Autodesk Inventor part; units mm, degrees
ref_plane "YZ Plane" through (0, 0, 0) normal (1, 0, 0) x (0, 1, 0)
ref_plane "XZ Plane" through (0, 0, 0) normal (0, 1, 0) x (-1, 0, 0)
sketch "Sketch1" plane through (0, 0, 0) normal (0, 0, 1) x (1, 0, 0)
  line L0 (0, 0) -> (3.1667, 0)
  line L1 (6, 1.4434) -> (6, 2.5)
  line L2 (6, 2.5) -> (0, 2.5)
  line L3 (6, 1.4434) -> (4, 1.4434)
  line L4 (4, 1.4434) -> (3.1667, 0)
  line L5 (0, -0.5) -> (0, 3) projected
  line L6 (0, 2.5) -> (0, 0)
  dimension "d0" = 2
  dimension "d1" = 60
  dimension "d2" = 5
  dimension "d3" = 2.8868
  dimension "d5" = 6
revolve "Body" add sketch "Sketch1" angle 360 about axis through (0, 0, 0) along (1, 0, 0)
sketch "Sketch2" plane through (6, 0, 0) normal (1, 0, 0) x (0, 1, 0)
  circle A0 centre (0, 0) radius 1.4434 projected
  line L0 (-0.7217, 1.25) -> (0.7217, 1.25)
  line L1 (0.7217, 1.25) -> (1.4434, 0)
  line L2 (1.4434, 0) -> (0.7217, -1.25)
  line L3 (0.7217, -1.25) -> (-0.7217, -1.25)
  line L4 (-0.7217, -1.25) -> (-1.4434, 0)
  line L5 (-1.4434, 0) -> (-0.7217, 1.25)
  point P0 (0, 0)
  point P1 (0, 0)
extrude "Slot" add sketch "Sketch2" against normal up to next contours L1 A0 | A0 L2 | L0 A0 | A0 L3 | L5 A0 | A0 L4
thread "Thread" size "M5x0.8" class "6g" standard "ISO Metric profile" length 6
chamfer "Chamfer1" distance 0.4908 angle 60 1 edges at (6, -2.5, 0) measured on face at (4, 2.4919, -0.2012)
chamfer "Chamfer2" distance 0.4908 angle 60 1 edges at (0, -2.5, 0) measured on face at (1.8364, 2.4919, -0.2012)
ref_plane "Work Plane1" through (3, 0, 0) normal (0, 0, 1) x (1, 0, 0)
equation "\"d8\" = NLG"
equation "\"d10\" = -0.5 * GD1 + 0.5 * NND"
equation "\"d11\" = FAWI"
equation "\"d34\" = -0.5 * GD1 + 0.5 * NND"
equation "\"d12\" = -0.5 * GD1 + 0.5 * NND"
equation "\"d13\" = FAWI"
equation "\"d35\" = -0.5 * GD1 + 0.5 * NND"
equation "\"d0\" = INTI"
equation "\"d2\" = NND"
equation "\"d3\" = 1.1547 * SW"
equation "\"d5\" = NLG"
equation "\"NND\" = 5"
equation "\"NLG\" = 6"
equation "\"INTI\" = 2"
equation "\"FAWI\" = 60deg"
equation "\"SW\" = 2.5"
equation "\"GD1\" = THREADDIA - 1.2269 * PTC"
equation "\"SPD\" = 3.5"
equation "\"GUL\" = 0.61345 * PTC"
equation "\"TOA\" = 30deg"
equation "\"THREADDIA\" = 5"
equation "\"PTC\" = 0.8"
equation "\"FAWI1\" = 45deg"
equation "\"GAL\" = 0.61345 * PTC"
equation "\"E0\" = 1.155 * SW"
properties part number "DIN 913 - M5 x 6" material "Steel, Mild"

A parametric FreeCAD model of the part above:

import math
import FreeCAD as App
import Part
import Sketcher
Q = App.Units.Quantity


def edges_at(feature, points):
    """Names of the edges that pass closest to the given points."""
    edges = feature.Shape.Edges
    near = lambda p: min(range(len(edges)), key=lambda i: edges[i].distToShape(Part.Vertex(*p))[0])
    return sorted({f"Edge{near(p) + 1}" for p in points})


def add_polygon(sketch, points):
    """Adds a closed chain of lines whose ends are joined by coincident constraints."""
    first, n = sketch.GeometryCount, len(points)
    for a, b in zip(points, points[1:] + points[:1]):
        sketch.addGeometry(Part.LineSegment(App.Vector(*a, 0), App.Vector(*b, 0)), False)
    for i in range(n):
        sketch.addConstraint(Sketcher.Constraint("Coincident", first + i, 2, first + (i + 1) % n, 1))

doc = App.newDocument("Part")
params = doc.addObject("Spreadsheet::Sheet", "Params")
for row, (alias, value) in enumerate([
    ("sketch1_width", "2 mm"),
    ("sketch1_width2", "6 mm"),
    ("sketch1_height", "2.5 mm"),
    ("revolution_angle", "360 deg"),
    ("chamfer_size", "0.4908 mm"),
    ("chamfer2_size", "0.4908 mm"),
], start=1):
    params.set(f"A{row}", alias)
    params.set(f"B{row}", "=" + value)
    params.setAlias(f"B{row}", alias)

body = doc.addObject("PartDesign::Body", "Body")

# Sketch on XY plane
sketch1 = body.newObject("Sketcher::SketchObject", "Sketch")
sketch1.AttachmentSupport = (doc.getObject("XY_Plane"), [""])
sketch1.MapMode = "FlatFace"
add_polygon(sketch1, [(0, 2.5), (0, 0), (3.1667, 0), (4, 1.4434), (6, 1.4434), (6, 2.5)])  # lines 0-5
sketch1.addConstraint([
    Sketcher.Constraint("Vertical", 0),
    Sketcher.Constraint("Horizontal", 1),
    Sketcher.Constraint("Horizontal", 3),
    Sketcher.Constraint("Vertical", 4),
    Sketcher.Constraint("Horizontal", 5),
    Sketcher.Constraint("Coincident", 0, 2, -1, 1),
    Sketcher.Constraint("DistanceX", 3, 1, 3, 2, Q("2 mm")),
    Sketcher.Constraint("DistanceX", 5, 2, 5, 1, Q("6 mm")),
    Sketcher.Constraint("DistanceY", 0, 2, 0, 1, Q("2.5 mm")),
    Sketcher.Constraint("DistanceX", 1, 1, 1, 2, Q("3.1667 mm")),
    Sketcher.Constraint("DistanceY", 4, 1, 4, 2, Q("1.0566 mm")),
])
sketch1.setExpression("Constraints[12]", "Params.sketch1_width")
sketch1.setExpression("Constraints[13]", "Params.sketch1_width2")
sketch1.setExpression("Constraints[14]", "Params.sketch1_height")
revolution = body.newObject("PartDesign::Revolution", "Revolution")
revolution.Profile = sketch1
revolution.ReferenceAxis = (sketch1, ["H_Axis"])
revolution.setExpression("Angle", "Params.revolution_angle")

# Sketch on YZ plane
sketch2 = body.newObject("Sketcher::SketchObject", "Sketch001")
sketch2.AttachmentSupport = (doc.getObject("YZ_Plane"), [""])
sketch2.MapMode = "FlatFace"
sketch2.AttachmentOffset = App.Placement(App.Vector(0, 0, 6), App.Rotation())
sketch2.addGeometry([
    Part.LineSegment(App.Vector(0.7217, 1.25, 0), App.Vector(1.4434, 0, 0)),  # 0
    Part.ArcOfCircle(Part.Circle(App.Vector(0, 0, 0), App.Vector(0, 0, 1), 1.4434), math.radians(0), math.radians(59.999582)),  # 1
    Part.ArcOfCircle(Part.Circle(App.Vector(0, 0, 0), App.Vector(0, 0, 1), 1.4434), math.radians(-59.999582), math.radians(0)),  # 2
    Part.LineSegment(App.Vector(1.4434, 0, 0), App.Vector(0.7217, -1.25, 0)),  # 3
    Part.LineSegment(App.Vector(-0.7217, 1.25, 0), App.Vector(0.7217, 1.25, 0)),  # 4
    Part.ArcOfCircle(Part.Circle(App.Vector(0, 0, 0), App.Vector(0, 0, 1), 1.4434), math.radians(59.999582), math.radians(120.000418)),  # 5
    Part.ArcOfCircle(Part.Circle(App.Vector(0, 0, 0), App.Vector(0, 0, 1), 1.4434), math.radians(-120.000418), math.radians(-59.999582)),  # 6
    Part.LineSegment(App.Vector(-0.7217, -1.25, 0), App.Vector(0.7217, -1.25, 0)),  # 7
    Part.LineSegment(App.Vector(-1.4434, 0, 0), App.Vector(-0.7217, 1.25, 0)),  # 8
    Part.ArcOfCircle(Part.Circle(App.Vector(0, 0, 0), App.Vector(0, 0, 1), 1.4434), math.radians(120.000418), math.radians(180)),  # 9
    Part.ArcOfCircle(Part.Circle(App.Vector(0, 0, 0), App.Vector(0, 0, 1), 1.4434), math.radians(180), math.radians(239.999582)),  # 10
    Part.LineSegment(App.Vector(-1.4434, 0, 0), App.Vector(-0.7217, -1.25, 0)),  # 11
], False)
sketch2.addConstraint([
    Sketcher.Constraint("Coincident", 0, 1, 1, 2),
    Sketcher.Constraint("Coincident", 1, 1, 0, 2),
    Sketcher.Constraint("Coincident", 2, 1, 3, 2),
    Sketcher.Constraint("Coincident", 3, 1, 2, 2),
    Sketcher.Constraint("Coincident", 4, 1, 5, 2),
    Sketcher.Constraint("Coincident", 5, 1, 4, 2),
    Sketcher.Constraint("Coincident", 6, 1, 7, 1),
    Sketcher.Constraint("Coincident", 7, 2, 6, 2),
    Sketcher.Constraint("Coincident", 8, 1, 9, 2),
    Sketcher.Constraint("Coincident", 9, 1, 8, 2),
    Sketcher.Constraint("Coincident", 10, 1, 11, 1),
    Sketcher.Constraint("Coincident", 11, 2, 10, 2),
    Sketcher.Constraint("Horizontal", 4),
    Sketcher.Constraint("Horizontal", 7),
    Sketcher.Constraint("Coincident", 1, 3, -1, 1),
    Sketcher.Constraint("Coincident", 2, 3, -1, 1),
    Sketcher.Constraint("Coincident", 5, 3, -1, 1),
    Sketcher.Constraint("Coincident", 6, 3, -1, 1),
    Sketcher.Constraint("Coincident", 9, 3, -1, 1),
    Sketcher.Constraint("Coincident", 10, 3, -1, 1),
    Sketcher.Constraint("Coincident", 3, 1, 1, 1),
    Sketcher.Constraint("Coincident", 5, 1, 0, 1),
    Sketcher.Constraint("Coincident", 7, 2, 2, 1),
    Sketcher.Constraint("Coincident", 9, 1, 4, 1),
    Sketcher.Constraint("Coincident", 10, 1, 8, 1),
    Sketcher.Constraint("PointOnObject", 1, 1, -1),
    Sketcher.Constraint("PointOnObject", 8, 1, -1),
    Sketcher.Constraint("Parallel", 3, 8),
    Sketcher.Constraint("Parallel", 0, 11),
    Sketcher.Constraint("Angle", 0, Q("-59.9996 deg")),
    Sketcher.Constraint("Radius", 1, Q("1.4434 mm")),
])
pad1 = body.newObject("PartDesign::Pad", "Pad")
pad1.Profile = sketch2
pad1.Type = "UpToFirst"
pad1.Reversed = True
doc.recompute()

chamfer = body.newObject("PartDesign::Chamfer", "Chamfer")
chamfer.Base = (pad1, edges_at(pad1, [(6, -2.5, 0)]))
chamfer.ChamferType = "Distance and Angle"
chamfer.setExpression("Size", "Params.chamfer_size")
chamfer.Angle = 60
doc.recompute()

chamfer2 = body.newObject("PartDesign::Chamfer", "Chamfer001")
chamfer2.Base = (chamfer, edges_at(chamfer, [(0, -2.5, 0)]))
chamfer2.ChamferType = "Distance and Angle"
chamfer2.setExpression("Size", "Params.chamfer2_size")
chamfer2.Angle = 60

doc.recompute()
